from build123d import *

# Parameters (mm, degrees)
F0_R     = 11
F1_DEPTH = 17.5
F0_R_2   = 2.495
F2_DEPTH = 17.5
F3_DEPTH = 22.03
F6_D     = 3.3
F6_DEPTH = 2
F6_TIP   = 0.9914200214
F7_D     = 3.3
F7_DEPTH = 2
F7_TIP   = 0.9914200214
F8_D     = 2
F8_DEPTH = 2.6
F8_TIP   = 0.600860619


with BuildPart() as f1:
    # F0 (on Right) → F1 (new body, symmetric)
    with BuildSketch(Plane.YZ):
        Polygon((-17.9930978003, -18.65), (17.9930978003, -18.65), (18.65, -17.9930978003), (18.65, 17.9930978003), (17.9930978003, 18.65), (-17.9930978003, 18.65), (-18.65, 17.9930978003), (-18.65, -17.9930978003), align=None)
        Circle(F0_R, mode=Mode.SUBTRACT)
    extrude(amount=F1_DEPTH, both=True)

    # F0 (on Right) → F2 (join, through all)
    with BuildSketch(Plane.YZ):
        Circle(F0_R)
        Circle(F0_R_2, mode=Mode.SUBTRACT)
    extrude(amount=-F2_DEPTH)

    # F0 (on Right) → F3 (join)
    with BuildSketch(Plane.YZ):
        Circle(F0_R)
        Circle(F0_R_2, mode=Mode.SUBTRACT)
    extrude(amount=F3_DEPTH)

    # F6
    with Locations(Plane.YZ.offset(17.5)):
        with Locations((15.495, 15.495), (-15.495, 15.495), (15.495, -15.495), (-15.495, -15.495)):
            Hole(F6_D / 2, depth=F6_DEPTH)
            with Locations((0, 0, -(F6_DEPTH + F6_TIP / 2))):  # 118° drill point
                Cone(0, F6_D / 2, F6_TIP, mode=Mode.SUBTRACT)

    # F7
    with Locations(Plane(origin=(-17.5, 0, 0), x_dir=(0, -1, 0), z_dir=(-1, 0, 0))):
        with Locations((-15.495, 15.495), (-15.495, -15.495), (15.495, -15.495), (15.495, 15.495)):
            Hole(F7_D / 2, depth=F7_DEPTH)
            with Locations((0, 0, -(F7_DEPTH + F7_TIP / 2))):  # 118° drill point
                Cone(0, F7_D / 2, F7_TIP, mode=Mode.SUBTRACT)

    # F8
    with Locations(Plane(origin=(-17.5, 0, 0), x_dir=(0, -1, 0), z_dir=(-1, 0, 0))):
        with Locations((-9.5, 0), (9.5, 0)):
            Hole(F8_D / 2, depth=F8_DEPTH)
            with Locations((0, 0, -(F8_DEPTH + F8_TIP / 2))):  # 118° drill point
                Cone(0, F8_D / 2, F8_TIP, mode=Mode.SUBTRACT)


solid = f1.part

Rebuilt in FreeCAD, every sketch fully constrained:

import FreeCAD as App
import Part
import Sketcher
from FreeCAD import Vector
Q = App.Units.Quantity

doc = App.newDocument("Part")
body = doc.addObject("PartDesign::Body", "Body")

sketch1 = body.newObject("Sketcher::SketchObject", "Sketch")
sketch1.AttachmentSupport = (doc.getObject("YZ_Plane"), [""])
sketch1.MapMode = "FlatFace"
sketch1.addGeometry([
    Part.LineSegment(Vector(-18, -18.6, 0), Vector(18, -18.6, 0)),
    Part.LineSegment(Vector(18, -18.6, 0), Vector(18.6, -18, 0)),
    Part.LineSegment(Vector(18.6, -18, 0), Vector(18.6, 18, 0)),
    Part.LineSegment(Vector(18.6, 18, 0), Vector(18, 18.6, 0)),
    Part.LineSegment(Vector(18, 18.6, 0), Vector(-18, 18.6, 0)),
    Part.LineSegment(Vector(-18, 18.6, 0), Vector(-18.6, 18, 0)),
    Part.LineSegment(Vector(-18.6, 18, 0), Vector(-18.6, -18, 0)),
    Part.LineSegment(Vector(-18.6, -18, 0), Vector(-18, -18.6, 0)),
    Part.Circle(Vector(0, 0, 0), Vector(0, 0, 1), 11),
], False)
sketch1.addConstraint([
    Sketcher.Constraint("Coincident", 0, 2, 1, 1),
    Sketcher.Constraint("Coincident", 1, 2, 2, 1),
    Sketcher.Constraint("Coincident", 2, 2, 3, 1),
    Sketcher.Constraint("Coincident", 3, 2, 4, 1),
    Sketcher.Constraint("Coincident", 4, 2, 5, 1),
    Sketcher.Constraint("Coincident", 5, 2, 6, 1),
    Sketcher.Constraint("Coincident", 6, 2, 7, 1),
    Sketcher.Constraint("Coincident", 7, 2, 0, 1),
    Sketcher.Constraint("Horizontal", 0),
    Sketcher.Constraint("Vertical", 2),
    Sketcher.Constraint("Horizontal", 4),
    Sketcher.Constraint("Vertical", 6),
    Sketcher.Constraint("Coincident", 8, 3, -1, 1),
    Sketcher.Constraint("Symmetric", 0, 2, 4, 2, -1, 1),
    Sketcher.Constraint("Symmetric", 1, 2, 5, 2, -1, 1),
    Sketcher.Constraint("Perpendicular", 1, 3),
    Sketcher.Constraint("Perpendicular", 5, 7),
    Sketcher.Constraint("Horizontal", 2, 2, 5, 2),
    Sketcher.Constraint("Horizontal", 1, 2, 6, 2),
    Sketcher.Constraint("Vertical", 0, 2, 3, 2),
    Sketcher.Constraint("Equal", 4, 2),
    Sketcher.Constraint("Diameter", 8, Q("22 mm")),
    Sketcher.Constraint("DistanceY", 0, 2, 3, 2, Q("37.3 mm")),
    Sketcher.Constraint("Distance", 1, Q("0.929 mm")),
])
pad1 = body.newObject("PartDesign::Pad", "Pad")
pad1.Profile = sketch1
pad1.Length = 35
pad1.Midplane = True

sketch2 = body.newObject("Sketcher::SketchObject", "Sketch001")
sketch2.AttachmentSupport = (doc.getObject("YZ_Plane"), [""])
sketch2.MapMode = "FlatFace"
sketch2.addGeometry([
    Part.Circle(Vector(0, 0, 0), Vector(0, 0, 1), 11),
    Part.Circle(Vector(0, 0, 0), Vector(0, 0, 1), 2.5),
], False)
sketch2.addConstraint([
    Sketcher.Constraint("Coincident", 0, 3, -1, 1),
    Sketcher.Constraint("Coincident", 1, 3, -1, 1),
    Sketcher.Constraint("Diameter", 0, Q("22 mm")),
    Sketcher.Constraint("Diameter", 1, Q("4.99 mm")),
])
pad2 = body.newObject("PartDesign::Pad", "Pad001")
pad2.Profile = sketch2
pad2.Length = 17.5
pad2.Reversed = True

sketch3 = body.newObject("Sketcher::SketchObject", "Sketch002")
sketch3.AttachmentSupport = (doc.getObject("YZ_Plane"), [""])
sketch3.MapMode = "FlatFace"
sketch3.addGeometry([
    Part.Circle(Vector(0, 0, 0), Vector(0, 0, 1), 11),
    Part.Circle(Vector(0, 0, 0), Vector(0, 0, 1), 2.5),
], False)
sketch3.addConstraint([
    Sketcher.Constraint("Coincident", 0, 3, -1, 1),
    Sketcher.Constraint("Coincident", 1, 3, -1, 1),
    Sketcher.Constraint("Diameter", 0, Q("22 mm")),
    Sketcher.Constraint("Diameter", 1, Q("4.99 mm")),
])
pad3 = body.newObject("PartDesign::Pad", "Pad002")
pad3.Profile = sketch3
pad3.Length = 22.03

sketch4 = body.newObject("Sketcher::SketchObject", "Sketch003")
sketch4.AttachmentSupport = (doc.getObject("YZ_Plane"), [""])
sketch4.MapMode = "FlatFace"
sketch4.AttachmentOffset = App.Placement(Vector(0, 0, 17.5), App.Rotation())
sketch4.addGeometry([
    Part.Circle(Vector(15.5, 15.5, 0), Vector(0, 0, 1), 1.6),
    Part.Circle(Vector(-15.5, 15.5, 0), Vector(0, 0, 1), 1.6),
    Part.Circle(Vector(15.5, -15.5, 0), Vector(0, 0, 1), 1.6),
    Part.Circle(Vector(-15.5, -15.5, 0), Vector(0, 0, 1), 1.6),
], False)
sketch4.addConstraint([
    Sketcher.Constraint("Equal", 0, 1),
    Sketcher.Constraint("Equal", 1, 2),
    Sketcher.Constraint("Equal", 2, 3),
    Sketcher.Constraint("Symmetric", 1, 3, 2, 3, -1, 1),
    Sketcher.Constraint("Symmetric", 0, 3, 3, 3, -1, 1),
    Sketcher.Constraint("Symmetric", 0, 3, 1, 3, -2),
    Sketcher.Constraint("Diameter", 0, Q("3.3 mm")),
    Sketcher.Constraint("DistanceX", 1, 3, 0, 3, Q("30.99 mm")),
    Sketcher.Constraint("DistanceY", 2, 3, 0, 3, Q("30.99 mm")),
])
doc.recompute()
hole = body.newObject("PartDesign::Hole", "Hole")
hole.Profile = sketch4
hole.ThreadType = "None"
hole.Diameter = 3.3
hole.DepthType = "Dimension"
hole.Depth = 2
hole.DrillPoint = "Angled"
hole.DrillPointAngle = 118

sketch5 = body.newObject("Sketcher::SketchObject", "Sketch004")
sketch5.AttachmentSupport = (doc.getObject("YZ_Plane"), [""])
sketch5.MapMode = "FlatFace"
sketch5.AttachmentOffset = App.Placement(Vector(0, 0, -17.5), App.Rotation())
sketch5.addGeometry([
    Part.Circle(Vector(15.5, 15.5, 0), Vector(0, 0, 1), 1.6),
    Part.Circle(Vector(15.5, -15.5, 0), Vector(0, 0, 1), 1.6),
    Part.Circle(Vector(-15.5, -15.5, 0), Vector(0, 0, 1), 1.6),
    Part.Circle(Vector(-15.5, 15.5, 0), Vector(0, 0, 1), 1.6),
], False)
sketch5.addConstraint([
    Sketcher.Constraint("Equal", 0, 1),
    Sketcher.Constraint("Equal", 1, 2),
    Sketcher.Constraint("Equal", 2, 3),
    Sketcher.Constraint("Symmetric", 0, 3, 2, 3, -1, 1),
    Sketcher.Constraint("Symmetric", 1, 3, 3, 3, -1, 1),
    Sketcher.Constraint("Symmetric", 1, 3, 2, 3, -2),
    Sketcher.Constraint("Diameter", 0, Q("3.3 mm")),
    Sketcher.Constraint("DistanceY", 1, 3, 0, 3, Q("30.99 mm")),
    Sketcher.Constraint("DistanceX", 2, 3, 1, 3, Q("30.99 mm")),
])
doc.recompute()
hole2 = body.newObject("PartDesign::Hole", "Hole001")
hole2.Profile = sketch5
hole2.ThreadType = "None"
hole2.Diameter = 3.3
hole2.DepthType = "Dimension"
hole2.Depth = 2
hole2.DrillPoint = "Angled"
hole2.DrillPointAngle = 118
hole2.Reversed = True

sketch6 = body.newObject("Sketcher::SketchObject", "Sketch005")
sketch6.AttachmentSupport = (doc.getObject("YZ_Plane"), [""])
sketch6.MapMode = "FlatFace"
sketch6.AttachmentOffset = App.Placement(Vector(0, 0, -17.5), App.Rotation())
sketch6.addGeometry([
    Part.Circle(Vector(9.5, 0, 0), Vector(0, 0, 1), 1),
    Part.Circle(Vector(-9.5, 0, 0), Vector(0, 0, 1), 1),
], False)
sketch6.addConstraint([
    Sketcher.Constraint("Equal", 0, 1),
    Sketcher.Constraint("Symmetric", 0, 3, 1, 3, -1, 1),
    Sketcher.Constraint("PointOnObject", 0, 3, -1),
    Sketcher.Constraint("Diameter", 0, Q("2 mm")),
    Sketcher.Constraint("DistanceX", 1, 3, 0, 3, Q("19 mm")),
])
doc.recompute()
hole3 = body.newObject("PartDesign::Hole", "Hole002")
hole3.Profile = sketch6
hole3.ThreadType = "None"
hole3.Diameter = 2
hole3.DepthType = "Dimension"
hole3.Depth = 2.6
hole3.DrillPoint = "Angled"
hole3.DrillPointAngle = 118
hole3.Reversed = True

doc.recompute()
